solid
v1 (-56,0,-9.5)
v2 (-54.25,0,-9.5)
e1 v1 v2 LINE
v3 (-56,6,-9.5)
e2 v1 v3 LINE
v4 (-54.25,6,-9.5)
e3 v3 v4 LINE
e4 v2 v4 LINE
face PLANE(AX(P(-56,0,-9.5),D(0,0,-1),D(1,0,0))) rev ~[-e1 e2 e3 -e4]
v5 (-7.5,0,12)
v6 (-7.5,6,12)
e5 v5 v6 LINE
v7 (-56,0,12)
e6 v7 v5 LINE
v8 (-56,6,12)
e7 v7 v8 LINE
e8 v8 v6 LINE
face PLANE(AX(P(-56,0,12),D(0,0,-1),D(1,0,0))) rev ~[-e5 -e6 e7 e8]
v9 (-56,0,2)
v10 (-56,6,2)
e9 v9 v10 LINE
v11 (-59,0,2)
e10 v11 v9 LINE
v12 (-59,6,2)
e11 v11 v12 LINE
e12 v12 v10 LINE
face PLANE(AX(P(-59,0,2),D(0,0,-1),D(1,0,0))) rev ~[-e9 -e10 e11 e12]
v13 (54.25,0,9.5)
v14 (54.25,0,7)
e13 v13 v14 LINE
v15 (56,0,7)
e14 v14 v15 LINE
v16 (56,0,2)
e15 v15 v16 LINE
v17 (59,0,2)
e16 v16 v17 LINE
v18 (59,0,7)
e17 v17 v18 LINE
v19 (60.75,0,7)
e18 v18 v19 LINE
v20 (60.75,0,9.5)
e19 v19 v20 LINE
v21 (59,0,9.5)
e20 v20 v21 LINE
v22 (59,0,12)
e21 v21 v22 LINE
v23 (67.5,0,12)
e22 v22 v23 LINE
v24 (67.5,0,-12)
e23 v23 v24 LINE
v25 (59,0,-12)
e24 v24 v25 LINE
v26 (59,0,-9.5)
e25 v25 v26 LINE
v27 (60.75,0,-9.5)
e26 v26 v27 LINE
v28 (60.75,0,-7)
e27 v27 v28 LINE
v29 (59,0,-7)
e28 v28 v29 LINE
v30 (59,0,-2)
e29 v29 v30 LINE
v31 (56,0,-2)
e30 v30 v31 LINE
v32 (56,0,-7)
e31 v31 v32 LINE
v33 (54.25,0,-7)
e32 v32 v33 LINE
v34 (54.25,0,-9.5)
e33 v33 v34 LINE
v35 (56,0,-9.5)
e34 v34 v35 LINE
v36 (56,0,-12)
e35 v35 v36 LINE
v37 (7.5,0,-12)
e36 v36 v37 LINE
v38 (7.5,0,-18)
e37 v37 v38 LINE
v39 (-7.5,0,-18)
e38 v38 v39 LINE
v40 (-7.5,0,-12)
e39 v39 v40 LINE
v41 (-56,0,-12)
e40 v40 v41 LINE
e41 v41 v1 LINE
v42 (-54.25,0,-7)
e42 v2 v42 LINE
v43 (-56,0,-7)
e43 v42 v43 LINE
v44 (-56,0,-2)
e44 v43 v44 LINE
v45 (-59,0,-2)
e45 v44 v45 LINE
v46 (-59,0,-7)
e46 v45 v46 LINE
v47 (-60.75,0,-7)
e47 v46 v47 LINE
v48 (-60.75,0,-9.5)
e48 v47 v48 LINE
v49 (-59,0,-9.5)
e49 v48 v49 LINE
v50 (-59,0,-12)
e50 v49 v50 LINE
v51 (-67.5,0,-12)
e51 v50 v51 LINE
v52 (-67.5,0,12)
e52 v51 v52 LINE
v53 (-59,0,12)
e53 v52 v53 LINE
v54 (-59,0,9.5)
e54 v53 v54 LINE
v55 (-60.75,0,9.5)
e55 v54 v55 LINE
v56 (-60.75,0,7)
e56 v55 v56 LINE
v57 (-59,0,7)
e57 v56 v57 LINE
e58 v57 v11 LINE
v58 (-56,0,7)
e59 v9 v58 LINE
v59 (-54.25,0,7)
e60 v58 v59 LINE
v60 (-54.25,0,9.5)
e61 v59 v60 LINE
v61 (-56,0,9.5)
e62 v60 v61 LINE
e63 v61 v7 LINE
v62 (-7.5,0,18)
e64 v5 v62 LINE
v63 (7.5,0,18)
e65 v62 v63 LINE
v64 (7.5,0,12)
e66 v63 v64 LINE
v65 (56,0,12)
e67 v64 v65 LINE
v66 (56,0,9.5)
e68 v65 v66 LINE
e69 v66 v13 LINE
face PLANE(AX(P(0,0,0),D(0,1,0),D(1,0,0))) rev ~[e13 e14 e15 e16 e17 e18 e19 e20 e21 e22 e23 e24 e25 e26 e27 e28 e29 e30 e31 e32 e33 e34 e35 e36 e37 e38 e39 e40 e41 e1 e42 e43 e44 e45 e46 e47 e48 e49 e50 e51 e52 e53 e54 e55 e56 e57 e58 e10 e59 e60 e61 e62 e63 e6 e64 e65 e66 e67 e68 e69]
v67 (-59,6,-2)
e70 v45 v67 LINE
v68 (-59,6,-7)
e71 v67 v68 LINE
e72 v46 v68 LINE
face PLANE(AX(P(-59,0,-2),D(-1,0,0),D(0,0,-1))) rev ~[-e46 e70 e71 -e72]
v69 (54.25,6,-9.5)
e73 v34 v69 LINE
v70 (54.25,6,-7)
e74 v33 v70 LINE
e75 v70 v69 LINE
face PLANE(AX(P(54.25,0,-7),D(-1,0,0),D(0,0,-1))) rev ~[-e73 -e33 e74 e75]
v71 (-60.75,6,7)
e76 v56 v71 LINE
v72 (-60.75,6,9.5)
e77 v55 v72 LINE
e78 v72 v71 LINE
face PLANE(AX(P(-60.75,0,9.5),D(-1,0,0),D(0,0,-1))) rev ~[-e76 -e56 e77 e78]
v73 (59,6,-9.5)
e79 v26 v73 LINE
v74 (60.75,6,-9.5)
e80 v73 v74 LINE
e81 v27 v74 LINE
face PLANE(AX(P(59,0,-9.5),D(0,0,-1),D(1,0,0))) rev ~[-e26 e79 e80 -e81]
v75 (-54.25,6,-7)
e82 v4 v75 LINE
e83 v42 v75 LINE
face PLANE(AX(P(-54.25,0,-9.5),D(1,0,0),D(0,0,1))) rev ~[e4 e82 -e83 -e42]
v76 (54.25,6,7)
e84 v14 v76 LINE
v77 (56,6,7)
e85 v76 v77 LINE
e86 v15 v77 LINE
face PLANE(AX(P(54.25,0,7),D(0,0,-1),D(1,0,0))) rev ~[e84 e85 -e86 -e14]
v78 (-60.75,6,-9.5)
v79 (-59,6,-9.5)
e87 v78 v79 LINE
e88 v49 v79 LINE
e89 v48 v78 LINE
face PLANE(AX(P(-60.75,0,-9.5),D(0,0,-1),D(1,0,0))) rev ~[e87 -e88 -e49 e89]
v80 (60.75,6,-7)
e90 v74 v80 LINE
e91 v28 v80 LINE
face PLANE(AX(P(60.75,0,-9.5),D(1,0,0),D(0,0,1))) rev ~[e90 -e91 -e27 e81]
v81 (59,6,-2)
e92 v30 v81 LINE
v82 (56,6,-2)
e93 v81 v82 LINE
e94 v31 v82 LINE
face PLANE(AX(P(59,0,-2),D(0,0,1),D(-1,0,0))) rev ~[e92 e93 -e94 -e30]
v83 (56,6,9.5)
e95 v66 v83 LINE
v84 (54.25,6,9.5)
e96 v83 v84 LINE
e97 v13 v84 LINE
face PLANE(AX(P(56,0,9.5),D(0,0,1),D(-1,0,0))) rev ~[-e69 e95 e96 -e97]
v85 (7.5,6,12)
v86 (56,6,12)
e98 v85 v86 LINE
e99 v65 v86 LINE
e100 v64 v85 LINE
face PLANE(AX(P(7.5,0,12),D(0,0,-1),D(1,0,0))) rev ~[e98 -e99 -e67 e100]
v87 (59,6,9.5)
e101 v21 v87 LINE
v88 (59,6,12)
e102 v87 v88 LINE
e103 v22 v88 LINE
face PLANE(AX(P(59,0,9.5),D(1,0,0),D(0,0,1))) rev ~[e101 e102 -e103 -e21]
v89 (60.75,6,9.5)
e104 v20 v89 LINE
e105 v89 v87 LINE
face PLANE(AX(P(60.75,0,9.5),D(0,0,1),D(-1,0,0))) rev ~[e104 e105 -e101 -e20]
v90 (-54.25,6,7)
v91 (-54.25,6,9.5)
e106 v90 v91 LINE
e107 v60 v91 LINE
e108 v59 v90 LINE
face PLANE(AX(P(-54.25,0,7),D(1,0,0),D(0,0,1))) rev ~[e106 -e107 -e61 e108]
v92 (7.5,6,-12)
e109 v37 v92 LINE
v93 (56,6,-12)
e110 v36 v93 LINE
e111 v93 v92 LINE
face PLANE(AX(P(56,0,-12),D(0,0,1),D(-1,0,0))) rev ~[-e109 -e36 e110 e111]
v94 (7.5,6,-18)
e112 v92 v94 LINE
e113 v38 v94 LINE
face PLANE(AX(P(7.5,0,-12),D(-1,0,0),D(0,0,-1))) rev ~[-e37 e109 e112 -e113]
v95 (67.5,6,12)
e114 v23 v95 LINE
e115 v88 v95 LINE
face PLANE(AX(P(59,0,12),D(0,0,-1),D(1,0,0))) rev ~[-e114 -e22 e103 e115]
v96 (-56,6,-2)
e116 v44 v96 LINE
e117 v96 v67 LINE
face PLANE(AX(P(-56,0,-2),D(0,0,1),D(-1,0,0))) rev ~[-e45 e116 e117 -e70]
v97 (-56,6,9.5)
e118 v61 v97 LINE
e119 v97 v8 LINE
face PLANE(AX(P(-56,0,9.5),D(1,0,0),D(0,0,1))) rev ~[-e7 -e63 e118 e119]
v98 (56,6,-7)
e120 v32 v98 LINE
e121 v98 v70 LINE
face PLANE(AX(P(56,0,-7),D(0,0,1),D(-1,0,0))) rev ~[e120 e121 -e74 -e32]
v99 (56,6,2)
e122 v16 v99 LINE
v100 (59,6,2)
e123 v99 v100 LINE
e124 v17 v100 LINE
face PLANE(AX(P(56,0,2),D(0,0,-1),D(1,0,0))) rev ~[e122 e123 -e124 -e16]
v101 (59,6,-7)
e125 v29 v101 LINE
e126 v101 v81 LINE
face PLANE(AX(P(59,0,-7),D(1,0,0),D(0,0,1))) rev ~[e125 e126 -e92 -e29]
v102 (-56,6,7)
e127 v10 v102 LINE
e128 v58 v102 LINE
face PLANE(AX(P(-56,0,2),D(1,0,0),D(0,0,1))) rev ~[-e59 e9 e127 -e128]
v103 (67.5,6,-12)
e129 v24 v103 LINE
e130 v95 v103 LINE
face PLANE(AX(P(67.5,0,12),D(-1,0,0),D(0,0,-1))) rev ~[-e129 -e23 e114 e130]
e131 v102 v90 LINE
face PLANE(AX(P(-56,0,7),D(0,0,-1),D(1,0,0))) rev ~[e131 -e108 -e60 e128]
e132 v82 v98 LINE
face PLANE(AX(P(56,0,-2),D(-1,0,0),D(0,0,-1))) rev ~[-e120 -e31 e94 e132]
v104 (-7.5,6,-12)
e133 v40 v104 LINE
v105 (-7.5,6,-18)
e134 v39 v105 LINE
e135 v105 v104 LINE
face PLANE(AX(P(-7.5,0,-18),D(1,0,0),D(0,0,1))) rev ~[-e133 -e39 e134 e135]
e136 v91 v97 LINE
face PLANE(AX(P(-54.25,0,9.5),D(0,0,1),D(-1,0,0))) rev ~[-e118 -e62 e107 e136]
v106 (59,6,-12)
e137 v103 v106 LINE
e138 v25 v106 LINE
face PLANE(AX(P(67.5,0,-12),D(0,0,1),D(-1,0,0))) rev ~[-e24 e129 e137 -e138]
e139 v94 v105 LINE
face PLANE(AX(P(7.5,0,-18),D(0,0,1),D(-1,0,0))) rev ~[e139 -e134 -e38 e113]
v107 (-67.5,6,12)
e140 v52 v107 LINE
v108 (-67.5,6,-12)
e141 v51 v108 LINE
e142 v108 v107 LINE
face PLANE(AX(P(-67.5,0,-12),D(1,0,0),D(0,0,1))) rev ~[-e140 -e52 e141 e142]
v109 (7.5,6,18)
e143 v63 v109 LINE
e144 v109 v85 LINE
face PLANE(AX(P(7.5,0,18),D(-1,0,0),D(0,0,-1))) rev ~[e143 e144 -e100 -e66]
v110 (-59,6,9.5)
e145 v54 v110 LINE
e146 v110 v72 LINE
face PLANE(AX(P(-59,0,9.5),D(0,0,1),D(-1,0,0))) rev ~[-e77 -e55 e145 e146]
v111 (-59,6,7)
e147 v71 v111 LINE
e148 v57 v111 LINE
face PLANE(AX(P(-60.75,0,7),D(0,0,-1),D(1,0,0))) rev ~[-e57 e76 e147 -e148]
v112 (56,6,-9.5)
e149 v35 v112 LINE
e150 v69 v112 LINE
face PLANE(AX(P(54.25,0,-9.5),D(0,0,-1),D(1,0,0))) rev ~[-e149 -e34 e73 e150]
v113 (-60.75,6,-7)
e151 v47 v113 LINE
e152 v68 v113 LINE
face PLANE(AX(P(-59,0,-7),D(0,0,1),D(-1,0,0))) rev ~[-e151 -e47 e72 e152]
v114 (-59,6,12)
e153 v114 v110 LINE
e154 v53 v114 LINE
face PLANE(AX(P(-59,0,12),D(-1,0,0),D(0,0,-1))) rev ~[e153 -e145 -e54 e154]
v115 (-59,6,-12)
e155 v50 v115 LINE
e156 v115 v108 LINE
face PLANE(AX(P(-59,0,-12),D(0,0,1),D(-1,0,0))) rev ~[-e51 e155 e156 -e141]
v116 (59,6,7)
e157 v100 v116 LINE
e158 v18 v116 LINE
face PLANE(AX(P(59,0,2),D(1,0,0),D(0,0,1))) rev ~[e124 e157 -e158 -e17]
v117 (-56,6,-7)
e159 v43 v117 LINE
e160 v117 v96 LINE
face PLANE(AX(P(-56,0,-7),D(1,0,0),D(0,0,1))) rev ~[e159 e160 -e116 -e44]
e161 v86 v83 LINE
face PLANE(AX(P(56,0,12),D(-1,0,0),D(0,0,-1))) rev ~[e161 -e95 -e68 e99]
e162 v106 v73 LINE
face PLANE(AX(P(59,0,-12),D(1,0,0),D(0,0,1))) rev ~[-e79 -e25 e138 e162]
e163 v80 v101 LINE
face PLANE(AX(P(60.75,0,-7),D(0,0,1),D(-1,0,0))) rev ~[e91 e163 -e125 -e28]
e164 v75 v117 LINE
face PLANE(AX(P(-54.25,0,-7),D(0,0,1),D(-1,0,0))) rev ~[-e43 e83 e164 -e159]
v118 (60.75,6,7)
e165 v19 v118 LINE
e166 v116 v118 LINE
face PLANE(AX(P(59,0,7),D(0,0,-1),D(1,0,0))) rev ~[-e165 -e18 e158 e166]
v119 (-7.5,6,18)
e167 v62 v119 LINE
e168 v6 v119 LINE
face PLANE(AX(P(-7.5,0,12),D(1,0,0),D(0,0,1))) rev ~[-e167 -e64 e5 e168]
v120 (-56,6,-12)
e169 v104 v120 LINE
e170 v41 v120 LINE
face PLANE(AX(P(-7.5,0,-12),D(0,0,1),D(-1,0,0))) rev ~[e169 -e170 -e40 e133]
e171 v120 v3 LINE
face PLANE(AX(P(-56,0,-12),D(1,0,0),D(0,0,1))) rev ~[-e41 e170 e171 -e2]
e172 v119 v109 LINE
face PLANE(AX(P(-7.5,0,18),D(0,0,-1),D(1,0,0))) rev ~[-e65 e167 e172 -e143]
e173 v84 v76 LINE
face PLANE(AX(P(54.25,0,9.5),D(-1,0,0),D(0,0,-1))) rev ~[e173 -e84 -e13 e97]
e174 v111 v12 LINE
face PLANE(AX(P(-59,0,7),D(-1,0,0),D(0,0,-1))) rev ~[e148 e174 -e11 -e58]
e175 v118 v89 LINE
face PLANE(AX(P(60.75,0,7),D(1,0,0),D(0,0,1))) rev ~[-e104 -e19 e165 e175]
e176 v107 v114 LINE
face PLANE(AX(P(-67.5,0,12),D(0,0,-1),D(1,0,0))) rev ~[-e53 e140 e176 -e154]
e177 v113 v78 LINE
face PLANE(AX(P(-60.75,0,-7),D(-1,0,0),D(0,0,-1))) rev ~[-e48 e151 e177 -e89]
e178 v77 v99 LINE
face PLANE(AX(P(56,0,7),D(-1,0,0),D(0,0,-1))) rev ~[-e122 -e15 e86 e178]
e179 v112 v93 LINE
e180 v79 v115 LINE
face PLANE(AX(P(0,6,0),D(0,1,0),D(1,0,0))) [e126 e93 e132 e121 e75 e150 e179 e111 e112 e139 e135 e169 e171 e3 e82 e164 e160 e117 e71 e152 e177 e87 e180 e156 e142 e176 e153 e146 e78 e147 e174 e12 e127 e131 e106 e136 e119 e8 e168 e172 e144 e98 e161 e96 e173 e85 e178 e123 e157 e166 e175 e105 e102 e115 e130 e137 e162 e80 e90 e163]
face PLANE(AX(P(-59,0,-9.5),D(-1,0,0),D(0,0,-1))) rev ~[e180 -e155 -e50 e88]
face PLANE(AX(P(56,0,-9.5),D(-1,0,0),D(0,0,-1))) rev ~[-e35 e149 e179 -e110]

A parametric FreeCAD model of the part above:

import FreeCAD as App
import Part
import Sketcher

V = App.Vector

doc = App.newDocument("Part")
body = doc.addObject("PartDesign::Body", "Body")

# Sketch on XZ plane
sketch1 = body.newObject("Sketcher::SketchObject", "Sketch")
sketch1.AttachmentSupport = (doc.getObject("XZ_Plane"), [""])
sketch1.MapMode = "FlatFace"
sketch1.addGeometry([
    Part.LineSegment(V(-59, -12, 0), V(-67.5, -12, 0)),  # 0
    Part.LineSegment(V(-67.5, -12, 0), V(-67.5, 12, 0)),  # 1
    Part.LineSegment(V(-67.5, 12, 0), V(-59, 12, 0)),  # 2
    Part.LineSegment(V(-59, 12, 0), V(-59, 9.5, 0)),  # 3
    Part.LineSegment(V(-59, 9.5, 0), V(-60.8, 9.5, 0)),  # 4
    Part.LineSegment(V(-60.8, 9.5, 0), V(-60.8, 7, 0)),  # 5
    Part.LineSegment(V(-60.8, 7, 0), V(-59, 7, 0)),  # 6
    Part.LineSegment(V(-59, 7, 0), V(-59, 2, 0)),  # 7
    Part.LineSegment(V(-59, 2, 0), V(-56, 2, 0)),  # 8
    Part.LineSegment(V(-56, 2, 0), V(-56, 7, 0)),  # 9
    Part.LineSegment(V(-56, 7, 0), V(-54.2, 7, 0)),  # 10
    Part.LineSegment(V(-54.2, 7, 0), V(-54.2, 9.5, 0)),  # 11
    Part.LineSegment(V(-54.2, 9.5, 0), V(-56, 9.5, 0)),  # 12
    Part.LineSegment(V(-56, 9.5, 0), V(-56, 12, 0)),  # 13
    Part.LineSegment(V(-56, 12, 0), V(-7.5, 12, 0)),  # 14
    Part.LineSegment(V(-7.5, 12, 0), V(-7.5, 18, 0)),  # 15
    Part.LineSegment(V(-7.5, 18, 0), V(7.5, 18, 0)),  # 16
    Part.LineSegment(V(7.5, 18, 0), V(7.5, 12, 0)),  # 17
    Part.LineSegment(V(7.5, 12, 0), V(56, 12, 0)),  # 18
    Part.LineSegment(V(56, 12, 0), V(56, 9.5, 0)),  # 19
    Part.LineSegment(V(56, 9.5, 0), V(54.2, 9.5, 0)),  # 20
    Part.LineSegment(V(54.2, 9.5, 0), V(54.2, 7, 0)),  # 21
    Part.LineSegment(V(54.2, 7, 0), V(56, 7, 0)),  # 22
    Part.LineSegment(V(56, 7, 0), V(56, 2, 0)),  # 23
    Part.LineSegment(V(56, 2, 0), V(59, 2, 0)),  # 24
    Part.LineSegment(V(59, 2, 0), V(59, 7, 0)),  # 25
    Part.LineSegment(V(59, 7, 0), V(60.8, 7, 0)),  # 26
    Part.LineSegment(V(60.8, 7, 0), V(60.8, 9.5, 0)),  # 27
    Part.LineSegment(V(60.8, 9.5, 0), V(59, 9.5, 0)),  # 28
    Part.LineSegment(V(59, 9.5, 0), V(59, 12, 0)),  # 29
    Part.LineSegment(V(59, 12, 0), V(67.5, 12, 0)),  # 30
    Part.LineSegment(V(67.5, 12, 0), V(67.5, -12, 0)),  # 31
    Part.LineSegment(V(67.5, -12, 0), V(59, -12, 0)),  # 32
    Part.LineSegment(V(59, -12, 0), V(59, -9.5, 0)),  # 33
    Part.LineSegment(V(59, -9.5, 0), V(60.8, -9.5, 0)),  # 34
    Part.LineSegment(V(60.8, -9.5, 0), V(60.8, -7, 0)),  # 35
    Part.LineSegment(V(60.8, -7, 0), V(59, -7, 0)),  # 36
    Part.LineSegment(V(59, -7, 0), V(59, -2, 0)),  # 37
    Part.LineSegment(V(59, -2, 0), V(56, -2, 0)),  # 38
    Part.LineSegment(V(56, -2, 0), V(56, -7, 0)),  # 39
    Part.LineSegment(V(56, -7, 0), V(54.2, -7, 0)),  # 40
    Part.LineSegment(V(54.2, -7, 0), V(54.2, -9.5, 0)),  # 41
    Part.LineSegment(V(54.2, -9.5, 0), V(56, -9.5, 0)),  # 42
    Part.LineSegment(V(56, -9.5, 0), V(56, -12, 0)),  # 43
    Part.LineSegment(V(56, -12, 0), V(7.5, -12, 0)),  # 44
    Part.LineSegment(V(7.5, -12, 0), V(7.5, -18, 0)),  # 45
    Part.LineSegment(V(7.5, -18, 0), V(-7.5, -18, 0)),  # 46
    Part.LineSegment(V(-7.5, -18, 0), V(-7.5, -12, 0)),  # 47
    Part.LineSegment(V(-7.5, -12, 0), V(-56, -12, 0)),  # 48
    Part.LineSegment(V(-56, -12, 0), V(-56, -9.5, 0)),  # 49
    Part.LineSegment(V(-56, -9.5, 0), V(-54.2, -9.5, 0)),  # 50
    Part.LineSegment(V(-54.2, -9.5, 0), V(-54.2, -7, 0)),  # 51
    Part.LineSegment(V(-54.2, -7, 0), V(-56, -7, 0)),  # 52
    Part.LineSegment(V(-56, -7, 0), V(-56, -2, 0)),  # 53
    Part.LineSegment(V(-56, -2, 0), V(-59, -2, 0)),  # 54
    Part.LineSegment(V(-59, -2, 0), V(-59, -7, 0)),  # 55
    Part.LineSegment(V(-59, -7, 0), V(-60.8, -7, 0)),  # 56
    Part.LineSegment(V(-60.8, -7, 0), V(-60.8, -9.5, 0)),  # 57
    Part.LineSegment(V(-60.8, -9.5, 0), V(-59, -9.5, 0)),  # 58
    Part.LineSegment(V(-59, -9.5, 0), V(-59, -12, 0)),  # 59
], False)
sketch1.addConstraint([
    Sketcher.Constraint("Coincident", 0, 2, 1, 1),
    Sketcher.Constraint("Coincident", 1, 2, 2, 1),
    Sketcher.Constraint("Coincident", 2, 2, 3, 1),
    Sketcher.Constraint("Coincident", 3, 2, 4, 1),
    Sketcher.Constraint("Coincident", 4, 2, 5, 1),
    Sketcher.Constraint("Coincident", 5, 2, 6, 1),
    Sketcher.Constraint("Coincident", 6, 2, 7, 1),
    Sketcher.Constraint("Coincident", 7, 2, 8, 1),
    Sketcher.Constraint("Coincident", 8, 2, 9, 1),
    Sketcher.Constraint("Coincident", 9, 2, 10, 1),
    Sketcher.Constraint("Coincident", 10, 2, 11, 1),
    Sketcher.Constraint("Coincident", 11, 2, 12, 1),
    Sketcher.Constraint("Coincident", 12, 2, 13, 1),
    Sketcher.Constraint("Coincident", 13, 2, 14, 1),
    Sketcher.Constraint("Coincident", 14, 2, 15, 1),
    Sketcher.Constraint("Coincident", 15, 2, 16, 1),
    Sketcher.Constraint("Coincident", 16, 2, 17, 1),
    Sketcher.Constraint("Coincident", 17, 2, 18, 1),
    Sketcher.Constraint("Coincident", 18, 2, 19, 1),
    Sketcher.Constraint("Coincident", 19, 2, 20, 1),
    Sketcher.Constraint("Coincident", 20, 2, 21, 1),
    Sketcher.Constraint("Coincident", 21, 2, 22, 1),
    Sketcher.Constraint("Coincident", 22, 2, 23, 1),
    Sketcher.Constraint("Coincident", 23, 2, 24, 1),
    Sketcher.Constraint("Coincident", 24, 2, 25, 1),
    Sketcher.Constraint("Coincident", 25, 2, 26, 1),
    Sketcher.Constraint("Coincident", 26, 2, 27, 1),
    Sketcher.Constraint("Coincident", 27, 2, 28, 1),
    Sketcher.Constraint("Coincident", 28, 2, 29, 1),
    Sketcher.Constraint("Coincident", 29, 2, 30, 1),
    Sketcher.Constraint("Coincident", 30, 2, 31, 1),
    Sketcher.Constraint("Coincident", 31, 2, 32, 1),
    Sketcher.Constraint("Coincident", 32, 2, 33, 1),
    Sketcher.Constraint("Coincident", 33, 2, 34, 1),
    Sketcher.Constraint("Coincident", 34, 2, 35, 1),
    Sketcher.Constraint("Coincident", 35, 2, 36, 1),
    Sketcher.Constraint("Coincident", 36, 2, 37, 1),
    Sketcher.Constraint("Coincident", 37, 2, 38, 1),
    Sketcher.Constraint("Coincident", 38, 2, 39, 1),
    Sketcher.Constraint("Coincident", 39, 2, 40, 1),
    Sketcher.Constraint("Coincident", 40, 2, 41, 1),
    Sketcher.Constraint("Coincident", 41, 2, 42, 1),
    Sketcher.Constraint("Coincident", 42, 2, 43, 1),
    Sketcher.Constraint("Coincident", 43, 2, 44, 1),
    Sketcher.Constraint("Coincident", 44, 2, 45, 1),
    Sketcher.Constraint("Coincident", 45, 2, 46, 1),
    Sketcher.Constraint("Coincident", 46, 2, 47, 1),
    Sketcher.Constraint("Coincident", 47, 2, 48, 1),
    Sketcher.Constraint("Coincident", 48, 2, 49, 1),
    Sketcher.Constraint("Coincident", 49, 2, 50, 1),
    Sketcher.Constraint("Coincident", 50, 2, 51, 1),
    Sketcher.Constraint("Coincident", 51, 2, 52, 1),
    Sketcher.Constraint("Coincident", 52, 2, 53, 1),
    Sketcher.Constraint("Coincident", 53, 2, 54, 1),
    Sketcher.Constraint("Coincident", 54, 2, 55, 1),
    Sketcher.Constraint("Coincident", 55, 2, 56, 1),
    Sketcher.Constraint("Coincident", 56, 2, 57, 1),
    Sketcher.Constraint("Coincident", 57, 2, 58, 1),
    Sketcher.Constraint("Coincident", 58, 2, 59, 1),
    Sketcher.Constraint("Coincident", 59, 2, 0, 1),
    Sketcher.Constraint("Horizontal", 0),
    Sketcher.Constraint("Vertical", 1),
    Sketcher.Constraint("Horizontal", 2),
    Sketcher.Constraint("Vertical", 3),
    Sketcher.Constraint("Horizontal", 4),
    Sketcher.Constraint("Vertical", 5),
    Sketcher.Constraint("Horizontal", 6),
    Sketcher.Constraint("Vertical", 7),
    Sketcher.Constraint("Horizontal", 8),
    Sketcher.Constraint("Vertical", 9),
    Sketcher.Constraint("Horizontal", 10),
    Sketcher.Constraint("Vertical", 11),
    Sketcher.Constraint("Horizontal", 12),
    Sketcher.Constraint("Vertical", 13),
    Sketcher.Constraint("Horizontal", 14),
    Sketcher.Constraint("Vertical", 15),
    Sketcher.Constraint("Horizontal", 16),
    Sketcher.Constraint("Vertical", 17),
    Sketcher.Constraint("Horizontal", 18),
    Sketcher.Constraint("Vertical", 19),
    Sketcher.Constraint("Horizontal", 20),
    Sketcher.Constraint("Vertical", 21),
    Sketcher.Constraint("Horizontal", 22),
    Sketcher.Constraint("Vertical", 23),
    Sketcher.Constraint("Horizontal", 24),
    Sketcher.Constraint("Vertical", 25),
    Sketcher.Constraint("Horizontal", 26),
    Sketcher.Constraint("Vertical", 27),
    Sketcher.Constraint("Horizontal", 28),
    Sketcher.Constraint("Vertical", 29),
    Sketcher.Constraint("Horizontal", 30),
    Sketcher.Constraint("Vertical", 31),
    Sketcher.Constraint("Horizontal", 32),
    Sketcher.Constraint("Vertical", 33),
    Sketcher.Constraint("Horizontal", 34),
    Sketcher.Constraint("Vertical", 35),
    Sketcher.Constraint("Horizontal", 36),
    Sketcher.Constraint("Vertical", 37),
    Sketcher.Constraint("Horizontal", 38),
    Sketcher.Constraint("Vertical", 39),
    Sketcher.Constraint("Horizontal", 40),
    Sketcher.Constraint("Vertical", 41),
    Sketcher.Constraint("Horizontal", 42),
    Sketcher.Constraint("Vertical", 43),
    Sketcher.Constraint("Horizontal", 44),
    Sketcher.Constraint("Vertical", 45),
    Sketcher.Constraint("Horizontal", 46),
    Sketcher.Constraint("Vertical", 47),
    Sketcher.Constraint("Horizontal", 48),
    Sketcher.Constraint("Vertical", 49),
    Sketcher.Constraint("Horizontal", 50),
    Sketcher.Constraint("Vertical", 51),
    Sketcher.Constraint("Horizontal", 52),
    Sketcher.Constraint("Vertical", 53),
    Sketcher.Constraint("Horizontal", 54),
    Sketcher.Constraint("Vertical", 55),
    Sketcher.Constraint("Horizontal", 56),
    Sketcher.Constraint("Vertical", 57),
    Sketcher.Constraint("Horizontal", 58),
    Sketcher.Constraint("Vertical", 59),
    Sketcher.Constraint("Symmetric", 0, 2, 30, 2, -1, 1),
    Sketcher.Constraint("Symmetric", 2, 2, 32, 2, -1, 1),
    Sketcher.Constraint("Symmetric", 4, 2, 34, 2, -1, 1),
    Sketcher.Constraint("Symmetric", 6, 2, 36, 2, -1, 1),
    Sketcher.Constraint("Symmetric", 8, 2, 38, 2, -1, 1),
    Sketcher.Constraint("Symmetric", 10, 2, 40, 2, -1, 1),
    Sketcher.Constraint("Symmetric", 12, 2, 42, 2, -1, 1),
    Sketcher.Constraint("Symmetric", 14, 2, 44, 2, -1, 1),
    Sketcher.Constraint("Symmetric", 16, 2, 46, 2, -1, 1),
    Sketcher.Constraint("Symmetric", 18, 2, 48, 2, -1, 1),
    Sketcher.Constraint("Symmetric", 20, 2, 50, 2, -1, 1),
    Sketcher.Constraint("Symmetric", 22, 2, 52, 2, -1, 1),
    Sketcher.Constraint("Symmetric", 24, 2, 54, 2, -1, 1),
    Sketcher.Constraint("Symmetric", 26, 2, 56, 2, -1, 1),
    Sketcher.Constraint("Symmetric", 28, 2, 58, 2, -1, 1),
    Sketcher.Constraint("Symmetric", 14, 2, 17, 2, -2),
    Sketcher.Constraint("Symmetric", 12, 2, 19, 2, -2),
    Sketcher.Constraint("Symmetric", 10, 2, 21, 2, -2),
    Sketcher.Constraint("Symmetric", 8, 2, 23, 2, -2),
    Sketcher.Constraint("Symmetric", 6, 2, 25, 2, -2),
    Sketcher.Constraint("Symmetric", 4, 2, 27, 2, -2),
    Sketcher.Constraint("Symmetric", 2, 2, 29, 2, -2),
    Sketcher.Constraint("Horizontal", 6, 2, 9, 2),
    Sketcher.Constraint("Horizontal", 4, 2, 11, 2),
    Sketcher.Constraint("Horizontal", 2, 2, 13, 2),
    Sketcher.Constraint("Vertical", 3, 2, 6, 2),
    Sketcher.Constraint("Vertical", 9, 2, 12, 2),
    Sketcher.Constraint("Equal", 6, 10),
    Sketcher.Constraint("Equal", 3, 5),
    Sketcher.Constraint("DistanceX", 8, 1, 8, 2, 3.0),
    Sketcher.Constraint("DistanceX", 16, 1, 16, 2, 15.0),
    Sketcher.Constraint("DistanceY", 1, 1, 1, 2, 24.0),
    Sketcher.Constraint("DistanceY", 7, 2, 7, 1, 5.0),
    Sketcher.Constraint("DistanceY", 15, 1, 15, 2, 6.0),
    Sketcher.Constraint("DistanceX", 0, 2, 0, 1, 8.5),
    Sketcher.Constraint("DistanceX", 14, 1, 14, 2, 48.5),
    Sketcher.Constraint("DistanceY", 3, 2, 3, 1, 2.5),
    Sketcher.Constraint("DistanceX", 4, 2, 4, 1, 1.75),
])
pad1 = body.newObject("PartDesign::Pad", "Pad")
pad1.Profile = sketch1
pad1.Length = 6
pad1.Reversed = True

doc.recompute()
